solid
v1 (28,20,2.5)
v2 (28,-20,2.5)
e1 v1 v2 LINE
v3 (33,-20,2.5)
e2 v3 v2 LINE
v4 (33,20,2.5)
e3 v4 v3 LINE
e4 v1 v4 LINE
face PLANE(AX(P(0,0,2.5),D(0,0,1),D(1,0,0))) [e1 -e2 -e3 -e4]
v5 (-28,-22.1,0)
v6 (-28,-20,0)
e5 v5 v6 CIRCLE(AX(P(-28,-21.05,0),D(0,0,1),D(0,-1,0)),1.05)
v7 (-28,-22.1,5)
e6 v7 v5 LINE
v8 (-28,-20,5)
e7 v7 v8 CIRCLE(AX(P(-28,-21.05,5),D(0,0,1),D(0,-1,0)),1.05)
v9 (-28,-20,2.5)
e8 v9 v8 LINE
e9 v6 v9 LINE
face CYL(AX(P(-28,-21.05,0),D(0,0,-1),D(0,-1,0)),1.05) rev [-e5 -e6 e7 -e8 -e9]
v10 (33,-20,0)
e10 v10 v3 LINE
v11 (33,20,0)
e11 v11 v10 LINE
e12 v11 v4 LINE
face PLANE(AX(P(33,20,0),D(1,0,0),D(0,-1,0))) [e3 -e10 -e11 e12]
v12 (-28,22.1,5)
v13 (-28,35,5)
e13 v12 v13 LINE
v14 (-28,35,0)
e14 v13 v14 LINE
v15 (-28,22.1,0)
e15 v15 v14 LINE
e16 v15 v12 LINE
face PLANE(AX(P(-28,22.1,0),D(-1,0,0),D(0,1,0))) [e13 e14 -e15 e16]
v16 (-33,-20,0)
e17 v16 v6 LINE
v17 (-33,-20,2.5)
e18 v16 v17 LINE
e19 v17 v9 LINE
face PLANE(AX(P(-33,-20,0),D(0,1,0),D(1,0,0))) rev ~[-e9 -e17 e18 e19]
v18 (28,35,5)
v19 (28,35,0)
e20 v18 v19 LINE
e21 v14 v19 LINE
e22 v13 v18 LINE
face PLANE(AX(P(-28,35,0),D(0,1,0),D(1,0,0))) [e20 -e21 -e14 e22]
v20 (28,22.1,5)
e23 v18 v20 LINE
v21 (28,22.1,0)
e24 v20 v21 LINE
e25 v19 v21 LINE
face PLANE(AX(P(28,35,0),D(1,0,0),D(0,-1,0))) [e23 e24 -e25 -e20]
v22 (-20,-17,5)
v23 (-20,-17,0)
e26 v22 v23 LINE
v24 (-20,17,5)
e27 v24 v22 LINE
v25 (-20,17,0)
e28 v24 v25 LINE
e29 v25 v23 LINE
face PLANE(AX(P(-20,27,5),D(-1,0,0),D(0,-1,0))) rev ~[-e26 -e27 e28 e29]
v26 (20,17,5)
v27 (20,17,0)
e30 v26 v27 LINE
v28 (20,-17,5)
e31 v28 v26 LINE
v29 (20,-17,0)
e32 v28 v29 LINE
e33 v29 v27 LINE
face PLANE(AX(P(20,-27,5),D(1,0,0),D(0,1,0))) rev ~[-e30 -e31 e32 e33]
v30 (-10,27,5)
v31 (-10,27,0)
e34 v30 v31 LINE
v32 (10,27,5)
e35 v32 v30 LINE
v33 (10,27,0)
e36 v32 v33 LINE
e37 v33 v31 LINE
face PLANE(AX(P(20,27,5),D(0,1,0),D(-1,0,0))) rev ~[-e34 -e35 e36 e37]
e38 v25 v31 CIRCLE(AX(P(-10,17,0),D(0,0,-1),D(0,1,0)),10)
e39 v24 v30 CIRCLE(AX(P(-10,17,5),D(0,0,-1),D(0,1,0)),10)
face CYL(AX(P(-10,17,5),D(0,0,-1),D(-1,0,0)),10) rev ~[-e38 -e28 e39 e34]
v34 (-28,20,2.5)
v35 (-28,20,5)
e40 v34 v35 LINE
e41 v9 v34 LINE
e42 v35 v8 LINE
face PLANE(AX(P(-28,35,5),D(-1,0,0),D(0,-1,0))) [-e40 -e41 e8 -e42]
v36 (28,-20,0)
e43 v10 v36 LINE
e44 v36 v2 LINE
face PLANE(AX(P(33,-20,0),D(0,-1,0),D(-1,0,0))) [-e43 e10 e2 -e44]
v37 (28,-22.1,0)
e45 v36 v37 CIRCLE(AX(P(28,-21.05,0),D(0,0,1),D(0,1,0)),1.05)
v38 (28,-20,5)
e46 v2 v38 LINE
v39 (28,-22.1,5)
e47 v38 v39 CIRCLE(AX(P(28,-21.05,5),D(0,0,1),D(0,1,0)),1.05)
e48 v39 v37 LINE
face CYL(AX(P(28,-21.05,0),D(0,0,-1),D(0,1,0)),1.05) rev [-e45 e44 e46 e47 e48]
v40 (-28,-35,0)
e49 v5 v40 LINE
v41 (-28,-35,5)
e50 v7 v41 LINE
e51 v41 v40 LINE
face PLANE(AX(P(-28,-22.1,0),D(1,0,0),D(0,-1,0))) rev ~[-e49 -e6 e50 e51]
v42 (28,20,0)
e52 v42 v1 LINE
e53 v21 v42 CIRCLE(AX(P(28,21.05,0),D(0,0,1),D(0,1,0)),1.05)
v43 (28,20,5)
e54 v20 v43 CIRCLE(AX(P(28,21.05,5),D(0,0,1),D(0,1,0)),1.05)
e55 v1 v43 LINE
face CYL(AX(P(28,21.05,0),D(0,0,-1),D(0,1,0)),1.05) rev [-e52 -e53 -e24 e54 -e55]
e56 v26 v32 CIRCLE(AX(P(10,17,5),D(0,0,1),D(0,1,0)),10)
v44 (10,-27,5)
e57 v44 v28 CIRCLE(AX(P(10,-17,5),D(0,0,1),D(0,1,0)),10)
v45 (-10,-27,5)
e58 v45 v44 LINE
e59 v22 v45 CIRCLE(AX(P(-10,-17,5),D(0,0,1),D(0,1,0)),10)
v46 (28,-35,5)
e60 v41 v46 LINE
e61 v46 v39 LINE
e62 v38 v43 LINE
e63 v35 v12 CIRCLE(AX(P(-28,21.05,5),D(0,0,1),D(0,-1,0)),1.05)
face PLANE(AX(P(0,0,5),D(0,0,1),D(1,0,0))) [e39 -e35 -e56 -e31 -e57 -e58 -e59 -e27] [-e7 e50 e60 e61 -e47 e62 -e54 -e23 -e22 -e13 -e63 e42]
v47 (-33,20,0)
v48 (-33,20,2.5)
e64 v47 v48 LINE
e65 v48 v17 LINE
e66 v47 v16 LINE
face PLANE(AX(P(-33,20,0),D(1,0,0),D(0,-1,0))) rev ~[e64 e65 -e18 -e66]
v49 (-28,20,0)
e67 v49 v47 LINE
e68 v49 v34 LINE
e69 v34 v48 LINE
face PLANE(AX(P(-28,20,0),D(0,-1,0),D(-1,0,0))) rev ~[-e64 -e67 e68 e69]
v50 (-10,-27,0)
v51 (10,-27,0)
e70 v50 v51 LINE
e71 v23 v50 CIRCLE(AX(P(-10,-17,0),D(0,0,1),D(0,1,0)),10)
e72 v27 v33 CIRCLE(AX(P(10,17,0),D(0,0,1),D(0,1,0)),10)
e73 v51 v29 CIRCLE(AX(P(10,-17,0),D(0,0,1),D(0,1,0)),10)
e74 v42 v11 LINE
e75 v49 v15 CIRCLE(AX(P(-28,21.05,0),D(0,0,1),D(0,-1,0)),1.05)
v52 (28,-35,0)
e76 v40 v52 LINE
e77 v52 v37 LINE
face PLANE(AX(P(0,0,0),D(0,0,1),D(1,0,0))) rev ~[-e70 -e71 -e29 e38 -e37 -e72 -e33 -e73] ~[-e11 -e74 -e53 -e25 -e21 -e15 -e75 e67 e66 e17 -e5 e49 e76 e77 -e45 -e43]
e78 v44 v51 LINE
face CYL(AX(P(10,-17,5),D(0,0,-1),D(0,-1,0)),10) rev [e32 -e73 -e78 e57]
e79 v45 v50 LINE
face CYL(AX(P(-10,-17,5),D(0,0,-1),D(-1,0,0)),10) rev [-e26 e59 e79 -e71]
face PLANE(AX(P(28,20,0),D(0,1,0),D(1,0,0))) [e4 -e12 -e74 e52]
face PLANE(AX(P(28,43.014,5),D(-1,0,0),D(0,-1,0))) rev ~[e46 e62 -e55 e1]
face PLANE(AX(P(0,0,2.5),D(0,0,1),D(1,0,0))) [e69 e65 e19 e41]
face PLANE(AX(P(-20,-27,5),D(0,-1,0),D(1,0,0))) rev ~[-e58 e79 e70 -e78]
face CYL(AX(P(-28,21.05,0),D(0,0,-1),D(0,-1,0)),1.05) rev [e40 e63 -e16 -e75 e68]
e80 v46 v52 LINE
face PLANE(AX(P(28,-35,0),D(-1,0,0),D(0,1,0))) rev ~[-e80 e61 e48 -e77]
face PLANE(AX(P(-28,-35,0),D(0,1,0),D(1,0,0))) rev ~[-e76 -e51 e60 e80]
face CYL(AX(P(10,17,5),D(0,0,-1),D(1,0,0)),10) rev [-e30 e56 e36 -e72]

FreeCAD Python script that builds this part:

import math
import FreeCAD as App
import Part
import Sketcher


def edges_at(feature, points):
    """Names of the edges that pass closest to the given points."""
    edges = feature.Shape.Edges
    near = lambda p: min(range(len(edges)), key=lambda i: edges[i].distToShape(Part.Vertex(*p))[0])
    return sorted({f"Edge{near(p) + 1}" for p in points})


def add_polygon(sketch, points):
    """Adds a closed chain of lines whose ends are joined by coincident constraints."""
    first, n = sketch.GeometryCount, len(points)
    for a, b in zip(points, points[1:] + points[:1]):
        sketch.addGeometry(Part.LineSegment(App.Vector(*a, 0), App.Vector(*b, 0)), False)
    for i in range(n):
        sketch.addConstraint(Sketcher.Constraint("Coincident", first + i, 2, first + (i + 1) % n, 1))

doc = App.newDocument("Part")
params = doc.addObject("Spreadsheet::Sheet", "Params")
for row, (alias, value) in enumerate([
    ("sketch1_width", "5 mm"),
    ("sketch1_width2", "56 mm"),
    ("sketch1_radius", "1.05 mm"),
    ("sketch1_height", "40 mm"),
    ("pad1_length", "5 mm"),
    ("pocket1_length", "2.5 mm"),
    ("sketch3_width", "40 mm"),
    ("sketch3_height", "54 mm"),
    ("pocket2_length", "10 mm"),
    ("fillet_radius", "10 mm"),
], start=1):
    params.set(f"A{row}", alias)
    params.set(f"B{row}", "=" + value)
    params.setAlias(f"B{row}", alias)

body = doc.addObject("PartDesign::Body", "Body")

# Sketch on XY plane
sketch1 = body.newObject("Sketcher::SketchObject", "Sketch")
sketch1.AttachmentSupport = (doc.getObject("XY_Plane"), [""])
sketch1.MapMode = "FlatFace"
sketch1.addGeometry([
    Part.LineSegment(App.Vector(-28, 35, 0), App.Vector(-28, 22.1, 0)),  # 0
    Part.ArcOfCircle(Part.Circle(App.Vector(-28, 21.05, 0), App.Vector(0, 0, 1), 1.05), math.radians(-90), math.radians(90)),  # 1
    Part.LineSegment(App.Vector(-28, 20, 0), App.Vector(-33, 20, 0)),  # 2
    Part.LineSegment(App.Vector(-33, 20, 0), App.Vector(-33, -20, 0)),  # 3
    Part.LineSegment(App.Vector(-33, -20, 0), App.Vector(-28, -20, 0)),  # 4
    Part.ArcOfCircle(Part.Circle(App.Vector(-28, -21.05, 0), App.Vector(0, 0, 1), 1.05), math.radians(-90), math.radians(90)),  # 5
    Part.LineSegment(App.Vector(-28, -22.1, 0), App.Vector(-28, -35, 0)),  # 6
    Part.LineSegment(App.Vector(-28, -35, 0), App.Vector(28, -35, 0)),  # 7
    Part.LineSegment(App.Vector(28, -35, 0), App.Vector(28, -22.1, 0)),  # 8
    Part.ArcOfCircle(Part.Circle(App.Vector(28, -21.05, 0), App.Vector(0, 0, 1), 1.05), math.radians(90), math.radians(270)),  # 9
    Part.LineSegment(App.Vector(28, -20, 0), App.Vector(33, -20, 0)),  # 10
    Part.LineSegment(App.Vector(33, -20, 0), App.Vector(33, 20, 0)),  # 11
    Part.LineSegment(App.Vector(33, 20, 0), App.Vector(28, 20, 0)),  # 12
    Part.ArcOfCircle(Part.Circle(App.Vector(28, 21.05, 0), App.Vector(0, 0, 1), 1.05), math.radians(90), math.radians(270)),  # 13
    Part.LineSegment(App.Vector(28, 22.1, 0), App.Vector(28, 35, 0)),  # 14
    Part.LineSegment(App.Vector(28, 35, 0), App.Vector(-28, 35, 0)),  # 15
], False)
sketch1.addConstraint([
    Sketcher.Constraint("Coincident", 0, 2, 1, 2),
    Sketcher.Constraint("Tangent", 1, 1, 2, 1),
    Sketcher.Constraint("Coincident", 2, 2, 3, 1),
    Sketcher.Constraint("Coincident", 3, 2, 4, 1),
    Sketcher.Constraint("Tangent", 4, 2, 5, 2),
    Sketcher.Constraint("Coincident", 5, 1, 6, 1),
    Sketcher.Constraint("Coincident", 6, 2, 7, 1),
    Sketcher.Constraint("Coincident", 7, 2, 8, 1),
    Sketcher.Constraint("Coincident", 8, 2, 9, 2),
    Sketcher.Constraint("Tangent", 9, 1, 10, 1),
    Sketcher.Constraint("Coincident", 10, 2, 11, 1),
    Sketcher.Constraint("Coincident", 11, 2, 12, 1),
    Sketcher.Constraint("Tangent", 12, 2, 13, 2),
    Sketcher.Constraint("Coincident", 13, 1, 14, 1),
    Sketcher.Constraint("Coincident", 14, 2, 15, 1),
    Sketcher.Constraint("Coincident", 15, 2, 0, 1),
    Sketcher.Constraint("Vertical", 0),
    Sketcher.Constraint("Horizontal", 2),
    Sketcher.Constraint("Vertical", 3),
    Sketcher.Constraint("Horizontal", 4),
    Sketcher.Constraint("Vertical", 6),
    Sketcher.Constraint("Horizontal", 7),
    Sketcher.Constraint("Vertical", 8),
    Sketcher.Constraint("Horizontal", 10),
    Sketcher.Constraint("Vertical", 11),
    Sketcher.Constraint("Horizontal", 12),
    Sketcher.Constraint("Vertical", 14),
    Sketcher.Constraint("Horizontal", 15),
    Sketcher.Constraint("Equal", 1, 5),
    Sketcher.Constraint("Equal", 5, 9),
    Sketcher.Constraint("Equal", 9, 13),
    Sketcher.Constraint("Symmetric", 1, 3, 9, 3, -1, 1),
    Sketcher.Constraint("Symmetric", 5, 3, 13, 3, -1, 1),
    Sketcher.Constraint("Symmetric", 6, 2, 14, 2, -1, 1),
    Sketcher.Constraint("Symmetric", 5, 3, 9, 3, -2),
    Sketcher.Constraint("Vertical", 5, 3, 0, 2),
    Sketcher.Constraint("Vertical", 4, 2, 5, 1),
    Sketcher.Constraint("Vertical", 13, 3, 7, 2),
    Sketcher.Constraint("Equal", 4, 10),
    Sketcher.Constraint("DistanceX", 2, 2, 2, 1, 5.0),
    Sketcher.Constraint("DistanceX", 7, 1, 7, 2, 56.0),
    Sketcher.Constraint("Radius", 1, 1.05),
    Sketcher.Constraint("DistanceY", 6, 2, 4, 2, 15.0),
    Sketcher.Constraint("DistanceY", 3, 2, 3, 1, 40.0),
])
sketch1.setExpression("Constraints[39]", "Params.sketch1_width")
sketch1.setExpression("Constraints[40]", "Params.sketch1_width2")
sketch1.setExpression("Constraints[41]", "Params.sketch1_radius")
sketch1.setExpression("Constraints[43]", "Params.sketch1_height")
pad1 = body.newObject("PartDesign::Pad", "Pad")
pad1.Profile = sketch1
pad1.setExpression("Length", "Params.pad1_length")

# Sketch on XY plane
sketch2 = body.newObject("Sketcher::SketchObject", "Sketch001")
sketch2.AttachmentSupport = (doc.getObject("XY_Plane"), [""])
sketch2.MapMode = "FlatFace"
sketch2.AttachmentOffset = App.Placement(App.Vector(0, 0, 5), App.Rotation())
add_polygon(sketch2, [(28, 43.014), (28, -43.014), (67.7785, -43.014), (67.7785, 43.014)])  # lines 0-3
add_polygon(sketch2, [(-28, -43.014), (-28, 43.014), (-67.7785, 43.014), (-67.7785, -43.014)])  # lines 4-7
sketch2.addConstraint([
    Sketcher.Constraint("Vertical", 0),
    Sketcher.Constraint("Horizontal", 1),
    Sketcher.Constraint("Vertical", 2),
    Sketcher.Constraint("Horizontal", 3),
    Sketcher.Constraint("Vertical", 4),
    Sketcher.Constraint("Horizontal", 5),
    Sketcher.Constraint("Vertical", 6),
    Sketcher.Constraint("Horizontal", 7),
    Sketcher.Constraint("Symmetric", 0, 2, 4, 2, -1, 1),
    Sketcher.Constraint("Symmetric", 2, 2, 6, 2, -1, 1),
    Sketcher.Constraint("Horizontal", 3, 2, 4, 2),
    Sketcher.Constraint("DistanceX", -1, 1, 0, 2, 28.0),
    Sketcher.Constraint("DistanceY", 0, 2, 0, 1, 86.028),
    Sketcher.Constraint("DistanceX", 1, 1, 1, 2, 39.7785),
])
pocket1 = body.newObject("PartDesign::Pocket", "Pocket")
pocket1.Profile = sketch2
pocket1.setExpression("Length", "Params.pocket1_length")

# Sketch on XY plane
sketch3 = body.newObject("Sketcher::SketchObject", "Sketch002")
sketch3.AttachmentSupport = (doc.getObject("XY_Plane"), [""])
sketch3.MapMode = "FlatFace"
sketch3.AttachmentOffset = App.Placement(App.Vector(0, 0, 5), App.Rotation())
add_polygon(sketch3, [(-20, 27), (-20, -27), (20, -27), (20, 27)])  # lines 0-3
sketch3.addConstraint([
    Sketcher.Constraint("Vertical", 0),
    Sketcher.Constraint("Horizontal", 1),
    Sketcher.Constraint("Vertical", 2),
    Sketcher.Constraint("Horizontal", 3),
    Sketcher.Constraint("Symmetric", 0, 2, 2, 2, -1, 1),
    Sketcher.Constraint("DistanceX", 1, 1, 1, 2, 40.0),
    Sketcher.Constraint("DistanceY", 0, 2, 0, 1, 54.0),
])
sketch3.setExpression("Constraints[9]", "Params.sketch3_width")
sketch3.setExpression("Constraints[10]", "Params.sketch3_height")
pocket2 = body.newObject("PartDesign::Pocket", "Pocket001")
pocket2.Profile = sketch3
pocket2.setExpression("Length", "Params.pocket2_length")
doc.recompute()

fillet = body.newObject("PartDesign::Fillet", "Fillet")
fillet.Base = (pocket2, edges_at(pocket2, [
    (-20, 27, 2.5),
    (20, 27, 2.5),
    (20, -27, 2.5),
    (-20, -27, 2.5),
]))
fillet.setExpression("Radius", "Params.fillet_radius")

doc.recompute()
